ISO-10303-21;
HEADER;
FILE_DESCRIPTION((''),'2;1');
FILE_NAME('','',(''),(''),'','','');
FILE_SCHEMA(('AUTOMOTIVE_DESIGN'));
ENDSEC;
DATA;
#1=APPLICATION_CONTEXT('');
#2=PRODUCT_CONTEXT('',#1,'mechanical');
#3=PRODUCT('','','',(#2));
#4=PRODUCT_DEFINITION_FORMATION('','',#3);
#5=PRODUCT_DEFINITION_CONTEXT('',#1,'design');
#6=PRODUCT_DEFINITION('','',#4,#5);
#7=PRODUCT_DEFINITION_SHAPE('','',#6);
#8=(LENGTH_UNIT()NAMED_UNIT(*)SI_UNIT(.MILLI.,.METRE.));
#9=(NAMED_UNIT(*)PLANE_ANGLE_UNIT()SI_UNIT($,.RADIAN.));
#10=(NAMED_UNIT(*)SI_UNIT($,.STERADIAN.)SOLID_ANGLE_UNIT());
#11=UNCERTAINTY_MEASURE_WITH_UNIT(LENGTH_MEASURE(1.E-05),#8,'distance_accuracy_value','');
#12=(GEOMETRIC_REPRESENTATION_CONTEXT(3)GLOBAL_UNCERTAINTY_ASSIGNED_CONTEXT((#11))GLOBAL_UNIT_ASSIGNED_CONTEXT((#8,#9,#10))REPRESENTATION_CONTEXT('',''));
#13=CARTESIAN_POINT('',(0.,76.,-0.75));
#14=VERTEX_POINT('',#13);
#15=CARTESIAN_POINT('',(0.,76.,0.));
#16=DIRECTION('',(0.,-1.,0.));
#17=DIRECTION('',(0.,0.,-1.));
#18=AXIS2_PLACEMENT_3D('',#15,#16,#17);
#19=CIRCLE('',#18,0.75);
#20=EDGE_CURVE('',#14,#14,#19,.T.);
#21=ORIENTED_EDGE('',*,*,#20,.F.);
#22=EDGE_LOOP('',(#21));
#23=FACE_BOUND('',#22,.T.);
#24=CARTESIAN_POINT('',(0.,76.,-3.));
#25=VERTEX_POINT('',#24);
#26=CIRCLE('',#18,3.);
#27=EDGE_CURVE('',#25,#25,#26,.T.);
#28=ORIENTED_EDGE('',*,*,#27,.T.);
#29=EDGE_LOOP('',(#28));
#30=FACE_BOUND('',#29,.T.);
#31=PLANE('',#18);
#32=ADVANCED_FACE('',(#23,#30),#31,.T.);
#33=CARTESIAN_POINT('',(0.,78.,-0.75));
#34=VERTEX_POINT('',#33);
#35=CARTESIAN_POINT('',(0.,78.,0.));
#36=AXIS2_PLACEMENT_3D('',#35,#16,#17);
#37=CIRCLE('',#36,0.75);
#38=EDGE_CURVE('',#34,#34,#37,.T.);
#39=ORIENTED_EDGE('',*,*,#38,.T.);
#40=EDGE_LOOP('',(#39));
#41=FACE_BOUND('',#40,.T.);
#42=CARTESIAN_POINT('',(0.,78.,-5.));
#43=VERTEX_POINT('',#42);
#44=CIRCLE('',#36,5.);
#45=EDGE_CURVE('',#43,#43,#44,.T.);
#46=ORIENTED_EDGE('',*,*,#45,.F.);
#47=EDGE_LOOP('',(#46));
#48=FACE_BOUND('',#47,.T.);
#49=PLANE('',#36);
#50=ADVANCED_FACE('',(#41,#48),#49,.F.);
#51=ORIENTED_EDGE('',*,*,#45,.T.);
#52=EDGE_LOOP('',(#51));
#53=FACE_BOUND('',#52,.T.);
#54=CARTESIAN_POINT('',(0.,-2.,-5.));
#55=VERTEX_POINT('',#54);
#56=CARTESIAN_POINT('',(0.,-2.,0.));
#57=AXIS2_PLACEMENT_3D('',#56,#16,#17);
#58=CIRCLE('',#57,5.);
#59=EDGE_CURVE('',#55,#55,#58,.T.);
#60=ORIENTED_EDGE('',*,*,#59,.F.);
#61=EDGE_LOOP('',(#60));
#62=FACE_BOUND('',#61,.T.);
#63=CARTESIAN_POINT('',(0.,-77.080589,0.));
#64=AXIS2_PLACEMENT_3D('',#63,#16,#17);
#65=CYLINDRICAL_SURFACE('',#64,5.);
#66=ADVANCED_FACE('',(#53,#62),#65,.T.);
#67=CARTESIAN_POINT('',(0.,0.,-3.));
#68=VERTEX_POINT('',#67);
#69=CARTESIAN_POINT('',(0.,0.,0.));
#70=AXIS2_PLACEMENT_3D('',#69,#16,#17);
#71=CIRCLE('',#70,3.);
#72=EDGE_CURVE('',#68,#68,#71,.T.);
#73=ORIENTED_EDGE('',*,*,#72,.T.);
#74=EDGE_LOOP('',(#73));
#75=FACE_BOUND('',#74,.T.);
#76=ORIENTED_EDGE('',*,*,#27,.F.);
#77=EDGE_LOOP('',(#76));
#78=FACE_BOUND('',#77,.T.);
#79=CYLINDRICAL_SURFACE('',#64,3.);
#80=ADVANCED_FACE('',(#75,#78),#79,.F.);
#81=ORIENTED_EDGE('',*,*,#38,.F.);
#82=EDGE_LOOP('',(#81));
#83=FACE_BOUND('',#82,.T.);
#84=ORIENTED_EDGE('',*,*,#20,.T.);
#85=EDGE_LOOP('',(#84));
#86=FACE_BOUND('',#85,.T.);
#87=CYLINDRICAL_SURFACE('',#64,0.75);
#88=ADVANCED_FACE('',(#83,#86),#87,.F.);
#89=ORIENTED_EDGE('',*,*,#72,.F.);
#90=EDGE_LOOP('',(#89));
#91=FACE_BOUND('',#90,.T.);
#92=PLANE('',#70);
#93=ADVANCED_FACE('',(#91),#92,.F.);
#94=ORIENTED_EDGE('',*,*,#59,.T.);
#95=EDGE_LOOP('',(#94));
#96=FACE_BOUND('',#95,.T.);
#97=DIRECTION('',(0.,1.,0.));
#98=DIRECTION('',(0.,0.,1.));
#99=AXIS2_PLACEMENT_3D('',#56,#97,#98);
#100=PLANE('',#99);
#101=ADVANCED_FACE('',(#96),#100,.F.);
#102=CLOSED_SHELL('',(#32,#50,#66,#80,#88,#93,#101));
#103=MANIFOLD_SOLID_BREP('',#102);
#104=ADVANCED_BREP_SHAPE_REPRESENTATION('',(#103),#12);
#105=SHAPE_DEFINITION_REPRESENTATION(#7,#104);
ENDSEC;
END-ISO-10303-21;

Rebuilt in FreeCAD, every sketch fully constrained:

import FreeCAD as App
import Part
import Sketcher

V = App.Vector

doc = App.newDocument("Part")
body = doc.addObject("PartDesign::Body", "Body")

sketch1 = body.newObject("Sketcher::SketchObject", "Sketch")
sketch1.AttachmentSupport = (doc.getObject("XY_Plane"), [""])
sketch1.MapMode = "FlatFace"
sketch1.addGeometry(Part.LineSegment(V(3, 0, 0), V(0, 0, 0)), False)
sketch1.addGeometry(Part.LineSegment(V(0, 0, 0), V(0, -2, 0)), False)
sketch1.addGeometry(Part.LineSegment(V(0, -2, 0), V(5, -2, 0)), False)
sketch1.addGeometry(Part.LineSegment(V(5, -2, 0), V(5, 78, 0)), False)
sketch1.addGeometry(Part.LineSegment(V(5, 78, 0), V(0.8, 78, 0)), False)
sketch1.addGeometry(Part.LineSegment(V(0.8, 78, 0), V(0.8, 76, 0)), False)
sketch1.addGeometry(Part.LineSegment(V(0.8, 76, 0), V(3, 76, 0)), False)
sketch1.addGeometry(Part.LineSegment(V(3, 76, 0), V(3, 0, 0)), False)
sketch1.addConstraint(Sketcher.Constraint("Coincident", 0, 2, 1, 1))
sketch1.addConstraint(Sketcher.Constraint("Coincident", 1, 2, 2, 1))
sketch1.addConstraint(Sketcher.Constraint("Coincident", 2, 2, 3, 1))
sketch1.addConstraint(Sketcher.Constraint("Coincident", 3, 2, 4, 1))
sketch1.addConstraint(Sketcher.Constraint("Coincident", 4, 2, 5, 1))
sketch1.addConstraint(Sketcher.Constraint("Coincident", 5, 2, 6, 1))
sketch1.addConstraint(Sketcher.Constraint("Coincident", 6, 2, 7, 1))
sketch1.addConstraint(Sketcher.Constraint("Coincident", 7, 2, 0, 1))
sketch1.addConstraint(Sketcher.Constraint("Horizontal", 0))
sketch1.addConstraint(Sketcher.Constraint("Vertical", 1))
sketch1.addConstraint(Sketcher.Constraint("Horizontal", 2))
sketch1.addConstraint(Sketcher.Constraint("Vertical", 3))
sketch1.addConstraint(Sketcher.Constraint("Horizontal", 4))
sketch1.addConstraint(Sketcher.Constraint("Vertical", 5))
sketch1.addConstraint(Sketcher.Constraint("Horizontal", 6))
sketch1.addConstraint(Sketcher.Constraint("Vertical", 7))
sketch1.addConstraint(Sketcher.Constraint("Coincident", 0, 2, -1, 1))
sketch1.addConstraint(Sketcher.Constraint("Equal", 1, 5))
sketch1.addConstraint(Sketcher.Constraint("DistanceX", 0, 2, 0, 1, 3.0))
sketch1.addConstraint(Sketcher.Constraint("DistanceX", 2, 1, 2, 2, 5.0))
sketch1.addConstraint(Sketcher.Constraint("DistanceY", 1, 2, 1, 1, 2.0))
sketch1.addConstraint(Sketcher.Constraint("DistanceY", 3, 1, 3, 2, 80.0))
sketch1.addConstraint(Sketcher.Constraint("DistanceX", 4, 2, 4, 1, 4.25))
revolution = body.newObject("PartDesign::Revolution", "Revolution")
revolution.Profile = sketch1
revolution.ReferenceAxis = (sketch1, ["V_Axis"])
revolution.Angle = 360

doc.recompute()
